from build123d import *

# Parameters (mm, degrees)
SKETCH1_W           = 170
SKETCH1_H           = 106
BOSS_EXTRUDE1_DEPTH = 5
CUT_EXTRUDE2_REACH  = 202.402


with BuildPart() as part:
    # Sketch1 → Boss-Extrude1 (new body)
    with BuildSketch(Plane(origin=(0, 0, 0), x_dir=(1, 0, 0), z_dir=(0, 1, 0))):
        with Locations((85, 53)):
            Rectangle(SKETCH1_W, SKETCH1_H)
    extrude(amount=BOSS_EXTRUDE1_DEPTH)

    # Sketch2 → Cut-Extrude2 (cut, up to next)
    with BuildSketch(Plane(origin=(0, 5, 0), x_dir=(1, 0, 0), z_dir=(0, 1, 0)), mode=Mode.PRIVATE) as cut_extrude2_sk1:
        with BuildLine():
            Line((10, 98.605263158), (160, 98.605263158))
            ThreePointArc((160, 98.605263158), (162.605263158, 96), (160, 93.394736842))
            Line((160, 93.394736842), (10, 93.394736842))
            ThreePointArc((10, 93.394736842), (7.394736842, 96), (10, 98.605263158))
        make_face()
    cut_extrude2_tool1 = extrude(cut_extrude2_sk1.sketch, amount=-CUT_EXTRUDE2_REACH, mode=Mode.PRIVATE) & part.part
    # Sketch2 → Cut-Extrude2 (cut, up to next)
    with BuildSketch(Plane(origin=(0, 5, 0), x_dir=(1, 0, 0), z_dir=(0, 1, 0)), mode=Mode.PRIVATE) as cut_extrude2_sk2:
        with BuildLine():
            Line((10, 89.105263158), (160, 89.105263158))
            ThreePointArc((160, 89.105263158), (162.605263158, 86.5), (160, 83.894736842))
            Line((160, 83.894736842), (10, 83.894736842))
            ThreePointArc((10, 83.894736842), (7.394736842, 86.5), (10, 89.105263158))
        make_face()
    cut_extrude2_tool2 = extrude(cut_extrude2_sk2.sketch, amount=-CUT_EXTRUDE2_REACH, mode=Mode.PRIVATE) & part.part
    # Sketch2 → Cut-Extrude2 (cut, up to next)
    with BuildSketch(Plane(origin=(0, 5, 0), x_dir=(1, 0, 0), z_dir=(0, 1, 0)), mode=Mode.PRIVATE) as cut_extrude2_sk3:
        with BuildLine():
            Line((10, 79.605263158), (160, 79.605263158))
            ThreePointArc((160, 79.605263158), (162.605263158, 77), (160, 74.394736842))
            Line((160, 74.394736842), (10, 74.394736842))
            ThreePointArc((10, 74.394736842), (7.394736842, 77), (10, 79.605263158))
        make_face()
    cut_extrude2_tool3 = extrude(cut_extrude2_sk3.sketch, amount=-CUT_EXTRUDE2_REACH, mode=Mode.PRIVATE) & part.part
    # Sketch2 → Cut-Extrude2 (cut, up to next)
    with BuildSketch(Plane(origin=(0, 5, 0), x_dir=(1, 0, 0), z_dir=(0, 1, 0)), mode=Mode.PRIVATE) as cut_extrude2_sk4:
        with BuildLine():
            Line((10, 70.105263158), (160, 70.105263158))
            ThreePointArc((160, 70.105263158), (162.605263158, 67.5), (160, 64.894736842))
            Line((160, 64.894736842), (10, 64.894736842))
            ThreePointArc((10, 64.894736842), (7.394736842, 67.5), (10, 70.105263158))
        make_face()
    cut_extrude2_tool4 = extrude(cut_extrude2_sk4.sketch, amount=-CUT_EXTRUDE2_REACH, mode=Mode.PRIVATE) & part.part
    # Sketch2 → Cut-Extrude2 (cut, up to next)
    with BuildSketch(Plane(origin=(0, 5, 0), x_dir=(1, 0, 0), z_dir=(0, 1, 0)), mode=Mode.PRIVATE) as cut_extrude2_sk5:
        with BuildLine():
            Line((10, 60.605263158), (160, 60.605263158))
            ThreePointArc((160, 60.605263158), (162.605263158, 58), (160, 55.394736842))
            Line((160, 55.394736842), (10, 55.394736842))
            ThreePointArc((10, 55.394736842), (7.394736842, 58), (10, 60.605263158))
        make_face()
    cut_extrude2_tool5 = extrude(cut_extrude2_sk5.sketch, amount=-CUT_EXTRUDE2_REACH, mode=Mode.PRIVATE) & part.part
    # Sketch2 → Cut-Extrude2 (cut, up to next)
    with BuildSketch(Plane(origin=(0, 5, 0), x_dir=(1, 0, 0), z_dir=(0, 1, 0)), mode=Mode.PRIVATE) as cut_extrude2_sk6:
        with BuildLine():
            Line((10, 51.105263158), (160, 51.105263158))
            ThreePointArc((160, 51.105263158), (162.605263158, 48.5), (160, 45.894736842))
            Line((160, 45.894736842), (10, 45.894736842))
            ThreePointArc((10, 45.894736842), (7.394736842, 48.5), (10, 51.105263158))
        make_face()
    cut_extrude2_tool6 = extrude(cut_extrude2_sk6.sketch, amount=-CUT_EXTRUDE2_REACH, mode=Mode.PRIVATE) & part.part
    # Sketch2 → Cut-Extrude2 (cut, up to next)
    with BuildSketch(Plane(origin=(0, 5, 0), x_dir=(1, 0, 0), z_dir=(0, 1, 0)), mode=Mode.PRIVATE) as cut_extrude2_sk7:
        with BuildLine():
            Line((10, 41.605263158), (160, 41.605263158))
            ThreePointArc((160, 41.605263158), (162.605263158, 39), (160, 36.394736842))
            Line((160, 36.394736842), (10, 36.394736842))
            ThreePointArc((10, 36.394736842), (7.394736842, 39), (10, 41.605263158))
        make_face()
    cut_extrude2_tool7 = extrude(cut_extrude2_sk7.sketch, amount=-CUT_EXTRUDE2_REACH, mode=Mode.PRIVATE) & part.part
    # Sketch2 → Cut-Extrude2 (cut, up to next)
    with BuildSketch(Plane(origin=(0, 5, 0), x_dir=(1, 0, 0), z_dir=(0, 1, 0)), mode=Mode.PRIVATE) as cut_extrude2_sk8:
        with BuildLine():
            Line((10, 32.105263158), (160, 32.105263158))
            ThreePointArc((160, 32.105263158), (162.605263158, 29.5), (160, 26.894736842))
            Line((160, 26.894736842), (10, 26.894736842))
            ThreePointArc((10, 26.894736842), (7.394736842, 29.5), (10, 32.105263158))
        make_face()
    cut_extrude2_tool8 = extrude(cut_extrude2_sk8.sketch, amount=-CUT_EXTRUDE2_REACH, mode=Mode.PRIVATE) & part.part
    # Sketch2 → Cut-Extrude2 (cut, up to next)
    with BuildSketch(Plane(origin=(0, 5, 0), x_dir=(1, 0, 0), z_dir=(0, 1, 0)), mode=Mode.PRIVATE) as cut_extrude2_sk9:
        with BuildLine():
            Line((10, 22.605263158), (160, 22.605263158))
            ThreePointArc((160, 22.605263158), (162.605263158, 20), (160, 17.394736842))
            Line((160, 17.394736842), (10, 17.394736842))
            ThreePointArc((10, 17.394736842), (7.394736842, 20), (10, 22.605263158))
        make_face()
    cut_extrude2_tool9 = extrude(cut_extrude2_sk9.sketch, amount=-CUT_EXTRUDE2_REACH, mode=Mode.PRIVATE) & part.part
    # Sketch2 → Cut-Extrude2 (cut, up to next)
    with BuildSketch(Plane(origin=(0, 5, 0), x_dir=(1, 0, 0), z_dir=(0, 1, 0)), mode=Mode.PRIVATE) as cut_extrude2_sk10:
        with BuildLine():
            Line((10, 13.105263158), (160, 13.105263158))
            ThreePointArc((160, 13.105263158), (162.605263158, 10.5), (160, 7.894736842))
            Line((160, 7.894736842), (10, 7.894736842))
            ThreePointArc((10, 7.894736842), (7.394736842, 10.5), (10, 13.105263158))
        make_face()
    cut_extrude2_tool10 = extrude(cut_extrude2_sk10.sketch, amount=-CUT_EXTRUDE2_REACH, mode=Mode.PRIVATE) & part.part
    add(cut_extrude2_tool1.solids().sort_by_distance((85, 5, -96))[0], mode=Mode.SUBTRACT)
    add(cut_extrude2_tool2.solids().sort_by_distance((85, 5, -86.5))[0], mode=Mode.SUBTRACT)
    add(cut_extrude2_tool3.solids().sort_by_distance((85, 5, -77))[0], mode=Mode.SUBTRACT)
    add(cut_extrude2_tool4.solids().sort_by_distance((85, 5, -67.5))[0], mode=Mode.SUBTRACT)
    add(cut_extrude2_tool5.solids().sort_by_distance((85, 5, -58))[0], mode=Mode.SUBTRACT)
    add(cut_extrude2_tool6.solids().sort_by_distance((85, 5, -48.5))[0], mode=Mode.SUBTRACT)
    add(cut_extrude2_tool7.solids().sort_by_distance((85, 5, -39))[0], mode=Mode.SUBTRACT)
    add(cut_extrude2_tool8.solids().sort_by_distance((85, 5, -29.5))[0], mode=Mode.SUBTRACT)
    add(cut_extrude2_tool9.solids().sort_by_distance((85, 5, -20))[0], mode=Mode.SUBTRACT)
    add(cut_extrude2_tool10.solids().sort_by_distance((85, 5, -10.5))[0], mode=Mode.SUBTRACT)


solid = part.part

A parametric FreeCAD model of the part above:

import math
import FreeCAD as App
import Part
import Sketcher
from FreeCAD import Vector


def add_polygon(sketch, points):
    """Adds a closed chain of lines whose ends are joined by coincident constraints."""
    first, n = sketch.GeometryCount, len(points)
    for a, b in zip(points, points[1:] + points[:1]):
        sketch.addGeometry(Part.LineSegment(App.Vector(*a, 0), App.Vector(*b, 0)), False)
    for i in range(n):
        sketch.addConstraint(Sketcher.Constraint("Coincident", first + i, 2, first + (i + 1) % n, 1))

doc = App.newDocument("Part")
body = doc.addObject("PartDesign::Body", "Body")

sketch1 = body.newObject("Sketcher::SketchObject", "Sketch")
sketch1.AttachmentSupport = (doc.getObject("XZ_Plane"), [""])
sketch1.MapMode = "FlatFace"
add_polygon(sketch1, [(0, -106), (0, 0), (170, 0), (170, -106)])
sketch1.addConstraint([
    Sketcher.Constraint("Vertical", 0),
    Sketcher.Constraint("Horizontal", 1),
    Sketcher.Constraint("Vertical", 2),
    Sketcher.Constraint("Horizontal", 3),
    Sketcher.Constraint("Coincident", 0, 2, -1, 1),
    Sketcher.Constraint("DistanceX", 1, 1, 1, 2, 170.0),
    Sketcher.Constraint("DistanceY", 0, 1, 0, 2, 106.0),
])
pad1 = body.newObject("PartDesign::Pad", "Pad")
pad1.Profile = sketch1
pad1.Length = 5
pad1.Reversed = True

sketch2 = body.newObject("Sketcher::SketchObject", "Sketch001")
sketch2.AttachmentSupport = (doc.getObject("XZ_Plane"), [""])
sketch2.MapMode = "FlatFace"
sketch2.AttachmentOffset = App.Placement(Vector(0, 0, -5), App.Rotation())
sketch2.addGeometry([
    Part.LineSegment(Vector(160, -98.6, 0), Vector(10, -98.6, 0)),
    Part.ArcOfCircle(Part.Circle(Vector(10, -96, 0), Vector(0, 0, 1), 2.6), math.radians(90), math.radians(270)),
    Part.LineSegment(Vector(10, -93.4, 0), Vector(160, -93.4, 0)),
    Part.ArcOfCircle(Part.Circle(Vector(160, -96, 0), Vector(0, 0, 1), 2.6), math.radians(-90), math.radians(90)),
], False)
sketch2.addConstraint([
    Sketcher.Constraint("Tangent", 0, 2, 1, 2),
    Sketcher.Constraint("Tangent", 1, 1, 2, 1),
    Sketcher.Constraint("Tangent", 2, 2, 3, 2),
    Sketcher.Constraint("Tangent", 3, 1, 0, 1),
    Sketcher.Constraint("Horizontal", 0),
    Sketcher.Constraint("Horizontal", 2),
    Sketcher.Constraint("DistanceX", 0, 2, 0, 1, 150.0),
    Sketcher.Constraint("DistanceX", -1, 1, 1, 3, 10.0),
    Sketcher.Constraint("DistanceY", 1, 3, -1, 1, 96.0),
    Sketcher.Constraint("Radius", 1, 2.605263),
])
pocket1 = body.newObject("PartDesign::Pocket", "Pocket")
pocket1.Profile = sketch2
pocket1.Type = "UpToFirst"
pocket1.Reversed = True

sketch3 = body.newObject("Sketcher::SketchObject", "Sketch002")
sketch3.AttachmentSupport = (doc.getObject("XZ_Plane"), [""])
sketch3.MapMode = "FlatFace"
sketch3.AttachmentOffset = App.Placement(Vector(0, 0, -5), App.Rotation())
sketch3.addGeometry([
    Part.LineSegment(Vector(160, -89.1, 0), Vector(10, -89.1, 0)),
    Part.ArcOfCircle(Part.Circle(Vector(10, -86.5, 0), Vector(0, 0, 1), 2.6), math.radians(90), math.radians(270)),
    Part.LineSegment(Vector(10, -83.9, 0), Vector(160, -83.9, 0)),
    Part.ArcOfCircle(Part.Circle(Vector(160, -86.5, 0), Vector(0, 0, 1), 2.6), math.radians(-90), math.radians(90)),
], False)
sketch3.addConstraint([
    Sketcher.Constraint("Tangent", 0, 2, 1, 2),
    Sketcher.Constraint("Tangent", 1, 1, 2, 1),
    Sketcher.Constraint("Tangent", 2, 2, 3, 2),
    Sketcher.Constraint("Tangent", 3, 1, 0, 1),
    Sketcher.Constraint("Horizontal", 0),
    Sketcher.Constraint("Horizontal", 2),
    Sketcher.Constraint("DistanceX", 0, 2, 0, 1, 150.0),
    Sketcher.Constraint("DistanceX", -1, 1, 1, 3, 10.0),
    Sketcher.Constraint("DistanceY", 1, 3, -1, 1, 86.5),
    Sketcher.Constraint("Radius", 1, 2.605263),
])
pocket2 = body.newObject("PartDesign::Pocket", "Pocket001")
pocket2.Profile = sketch3
pocket2.Type = "UpToFirst"
pocket2.Reversed = True

sketch4 = body.newObject("Sketcher::SketchObject", "Sketch003")
sketch4.AttachmentSupport = (doc.getObject("XZ_Plane"), [""])
sketch4.MapMode = "FlatFace"
sketch4.AttachmentOffset = App.Placement(Vector(0, 0, -5), App.Rotation())
sketch4.addGeometry([
    Part.LineSegment(Vector(160, -79.6, 0), Vector(10, -79.6, 0)),
    Part.ArcOfCircle(Part.Circle(Vector(10, -77, 0), Vector(0, 0, 1), 2.6), math.radians(90), math.radians(270)),
    Part.LineSegment(Vector(10, -74.4, 0), Vector(160, -74.4, 0)),
    Part.ArcOfCircle(Part.Circle(Vector(160, -77, 0), Vector(0, 0, 1), 2.6), math.radians(-90), math.radians(90)),
], False)
sketch4.addConstraint([
    Sketcher.Constraint("Tangent", 0, 2, 1, 2),
    Sketcher.Constraint("Tangent", 1, 1, 2, 1),
    Sketcher.Constraint("Tangent", 2, 2, 3, 2),
    Sketcher.Constraint("Tangent", 3, 1, 0, 1),
    Sketcher.Constraint("Horizontal", 0),
    Sketcher.Constraint("Horizontal", 2),
    Sketcher.Constraint("DistanceX", 0, 2, 0, 1, 150.0),
    Sketcher.Constraint("DistanceX", -1, 1, 1, 3, 10.0),
    Sketcher.Constraint("DistanceY", 1, 3, -1, 1, 77.0),
    Sketcher.Constraint("Radius", 1, 2.605263),
])
pocket3 = body.newObject("PartDesign::Pocket", "Pocket002")
pocket3.Profile = sketch4
pocket3.Type = "UpToFirst"
pocket3.Reversed = True

sketch5 = body.newObject("Sketcher::SketchObject", "Sketch004")
sketch5.AttachmentSupport = (doc.getObject("XZ_Plane"), [""])
sketch5.MapMode = "FlatFace"
sketch5.AttachmentOffset = App.Placement(Vector(0, 0, -5), App.Rotation())
sketch5.addGeometry([
    Part.LineSegment(Vector(160, -70.1, 0), Vector(10, -70.1, 0)),
    Part.ArcOfCircle(Part.Circle(Vector(10, -67.5, 0), Vector(0, 0, 1), 2.6), math.radians(90), math.radians(270)),
    Part.LineSegment(Vector(10, -64.9, 0), Vector(160, -64.9, 0)),
    Part.ArcOfCircle(Part.Circle(Vector(160, -67.5, 0), Vector(0, 0, 1), 2.6), math.radians(-90), math.radians(90)),
], False)
sketch5.addConstraint([
    Sketcher.Constraint("Tangent", 0, 2, 1, 2),
    Sketcher.Constraint("Tangent", 1, 1, 2, 1),
    Sketcher.Constraint("Tangent", 2, 2, 3, 2),
    Sketcher.Constraint("Tangent", 3, 1, 0, 1),
    Sketcher.Constraint("Horizontal", 0),
    Sketcher.Constraint("Horizontal", 2),
    Sketcher.Constraint("DistanceX", 0, 2, 0, 1, 150.0),
    Sketcher.Constraint("DistanceX", -1, 1, 1, 3, 10.0),
    Sketcher.Constraint("DistanceY", 1, 3, -1, 1, 67.5),
    Sketcher.Constraint("Radius", 1, 2.605263),
])
pocket4 = body.newObject("PartDesign::Pocket", "Pocket003")
pocket4.Profile = sketch5
pocket4.Type = "UpToFirst"
pocket4.Reversed = True

sketch6 = body.newObject("Sketcher::SketchObject", "Sketch005")
sketch6.AttachmentSupport = (doc.getObject("XZ_Plane"), [""])
sketch6.MapMode = "FlatFace"
sketch6.AttachmentOffset = App.Placement(Vector(0, 0, -5), App.Rotation())
sketch6.addGeometry([
    Part.LineSegment(Vector(160, -60.6, 0), Vector(10, -60.6, 0)),
    Part.ArcOfCircle(Part.Circle(Vector(10, -58, 0), Vector(0, 0, 1), 2.6), math.radians(90), math.radians(270)),
    Part.LineSegment(Vector(10, -55.4, 0), Vector(160, -55.4, 0)),
    Part.ArcOfCircle(Part.Circle(Vector(160, -58, 0), Vector(0, 0, 1), 2.6), math.radians(-90), math.radians(90)),
], False)
sketch6.addConstraint([
    Sketcher.Constraint("Tangent", 0, 2, 1, 2),
    Sketcher.Constraint("Tangent", 1, 1, 2, 1),
    Sketcher.Constraint("Tangent", 2, 2, 3, 2),
    Sketcher.Constraint("Tangent", 3, 1, 0, 1),
    Sketcher.Constraint("Horizontal", 0),
    Sketcher.Constraint("Horizontal", 2),
    Sketcher.Constraint("DistanceX", 0, 2, 0, 1, 150.0),
    Sketcher.Constraint("DistanceX", -1, 1, 1, 3, 10.0),
    Sketcher.Constraint("DistanceY", 1, 3, -1, 1, 58.0),
    Sketcher.Constraint("Radius", 1, 2.605263),
])
pocket5 = body.newObject("PartDesign::Pocket", "Pocket004")
pocket5.Profile = sketch6
pocket5.Type = "UpToFirst"
pocket5.Reversed = True

sketch7 = body.newObject("Sketcher::SketchObject", "Sketch006")
sketch7.AttachmentSupport = (doc.getObject("XZ_Plane"), [""])
sketch7.MapMode = "FlatFace"
sketch7.AttachmentOffset = App.Placement(Vector(0, 0, -5), App.Rotation())
sketch7.addGeometry([
    Part.LineSegment(Vector(160, -51.1, 0), Vector(10, -51.1, 0)),
    Part.ArcOfCircle(Part.Circle(Vector(10, -48.5, 0), Vector(0, 0, 1), 2.6), math.radians(90), math.radians(270)),
    Part.LineSegment(Vector(10, -45.9, 0), Vector(160, -45.9, 0)),
    Part.ArcOfCircle(Part.Circle(Vector(160, -48.5, 0), Vector(0, 0, 1), 2.6), math.radians(-90), math.radians(90)),
], False)
sketch7.addConstraint([
    Sketcher.Constraint("Tangent", 0, 2, 1, 2),
    Sketcher.Constraint("Tangent", 1, 1, 2, 1),
    Sketcher.Constraint("Tangent", 2, 2, 3, 2),
    Sketcher.Constraint("Tangent", 3, 1, 0, 1),
    Sketcher.Constraint("Horizontal", 0),
    Sketcher.Constraint("Horizontal", 2),
    Sketcher.Constraint("DistanceX", 0, 2, 0, 1, 150.0),
    Sketcher.Constraint("DistanceX", -1, 1, 1, 3, 10.0),
    Sketcher.Constraint("DistanceY", 1, 3, -1, 1, 48.5),
    Sketcher.Constraint("Radius", 1, 2.605263),
])
pocket6 = body.newObject("PartDesign::Pocket", "Pocket005")
pocket6.Profile = sketch7
pocket6.Type = "UpToFirst"
pocket6.Reversed = True

sketch8 = body.newObject("Sketcher::SketchObject", "Sketch007")
sketch8.AttachmentSupport = (doc.getObject("XZ_Plane"), [""])
sketch8.MapMode = "FlatFace"
sketch8.AttachmentOffset = App.Placement(Vector(0, 0, -5), App.Rotation())
sketch8.addGeometry([
    Part.LineSegment(Vector(160, -41.6, 0), Vector(10, -41.6, 0)),
    Part.ArcOfCircle(Part.Circle(Vector(10, -39, 0), Vector(0, 0, 1), 2.6), math.radians(90), math.radians(270)),
    Part.LineSegment(Vector(10, -36.4, 0), Vector(160, -36.4, 0)),
    Part.ArcOfCircle(Part.Circle(Vector(160, -39, 0), Vector(0, 0, 1), 2.6), math.radians(-90), math.radians(90)),
], False)
sketch8.addConstraint([
    Sketcher.Constraint("Tangent", 0, 2, 1, 2),
    Sketcher.Constraint("Tangent", 1, 1, 2, 1),
    Sketcher.Constraint("Tangent", 2, 2, 3, 2),
    Sketcher.Constraint("Tangent", 3, 1, 0, 1),
    Sketcher.Constraint("Horizontal", 0),
    Sketcher.Constraint("Horizontal", 2),
    Sketcher.Constraint("DistanceX", 0, 2, 0, 1, 150.0),
    Sketcher.Constraint("DistanceX", -1, 1, 1, 3, 10.0),
    Sketcher.Constraint("DistanceY", 1, 3, -1, 1, 39.0),
    Sketcher.Constraint("Radius", 1, 2.605263),
])
pocket7 = body.newObject("PartDesign::Pocket", "Pocket006")
pocket7.Profile = sketch8
pocket7.Type = "UpToFirst"
pocket7.Reversed = True

sketch9 = body.newObject("Sketcher::SketchObject", "Sketch008")
sketch9.AttachmentSupport = (doc.getObject("XZ_Plane"), [""])
sketch9.MapMode = "FlatFace"
sketch9.AttachmentOffset = App.Placement(Vector(0, 0, -5), App.Rotation())
sketch9.addGeometry([
    Part.LineSegment(Vector(160, -32.1, 0), Vector(10, -32.1, 0)),
    Part.ArcOfCircle(Part.Circle(Vector(10, -29.5, 0), Vector(0, 0, 1), 2.6), math.radians(90), math.radians(270)),
    Part.LineSegment(Vector(10, -26.9, 0), Vector(160, -26.9, 0)),
    Part.ArcOfCircle(Part.Circle(Vector(160, -29.5, 0), Vector(0, 0, 1), 2.6), math.radians(-90), math.radians(90)),
], False)
sketch9.addConstraint([
    Sketcher.Constraint("Tangent", 0, 2, 1, 2),
    Sketcher.Constraint("Tangent", 1, 1, 2, 1),
    Sketcher.Constraint("Tangent", 2, 2, 3, 2),
    Sketcher.Constraint("Tangent", 3, 1, 0, 1),
    Sketcher.Constraint("Horizontal", 0),
    Sketcher.Constraint("Horizontal", 2),
    Sketcher.Constraint("DistanceX", 0, 2, 0, 1, 150.0),
    Sketcher.Constraint("DistanceX", -1, 1, 1, 3, 10.0),
    Sketcher.Constraint("DistanceY", 1, 3, -1, 1, 29.5),
    Sketcher.Constraint("Radius", 1, 2.605263),
])
pocket8 = body.newObject("PartDesign::Pocket", "Pocket007")
pocket8.Profile = sketch9
pocket8.Type = "UpToFirst"
pocket8.Reversed = True

sketch10 = body.newObject("Sketcher::SketchObject", "Sketch009")
sketch10.AttachmentSupport = (doc.getObject("XZ_Plane"), [""])
sketch10.MapMode = "FlatFace"
sketch10.AttachmentOffset = App.Placement(Vector(0, 0, -5), App.Rotation())
sketch10.addGeometry([
    Part.LineSegment(Vector(160, -22.6, 0), Vector(10, -22.6, 0)),
    Part.ArcOfCircle(Part.Circle(Vector(10, -20, 0), Vector(0, 0, 1), 2.6), math.radians(90), math.radians(270)),
    Part.LineSegment(Vector(10, -17.4, 0), Vector(160, -17.4, 0)),
    Part.ArcOfCircle(Part.Circle(Vector(160, -20, 0), Vector(0, 0, 1), 2.6), math.radians(-90), math.radians(90)),
], False)
sketch10.addConstraint([
    Sketcher.Constraint("Tangent", 0, 2, 1, 2),
    Sketcher.Constraint("Tangent", 1, 1, 2, 1),
    Sketcher.Constraint("Tangent", 2, 2, 3, 2),
    Sketcher.Constraint("Tangent", 3, 1, 0, 1),
    Sketcher.Constraint("Horizontal", 0),
    Sketcher.Constraint("Horizontal", 2),
    Sketcher.Constraint("DistanceX", 0, 2, 0, 1, 150.0),
    Sketcher.Constraint("DistanceX", -1, 1, 1, 3, 10.0),
    Sketcher.Constraint("DistanceY", 1, 3, -1, 1, 20.0),
    Sketcher.Constraint("Radius", 1, 2.605263),
])
pocket9 = body.newObject("PartDesign::Pocket", "Pocket008")
pocket9.Profile = sketch10
pocket9.Type = "UpToFirst"
pocket9.Reversed = True

sketch11 = body.newObject("Sketcher::SketchObject", "Sketch010")
sketch11.AttachmentSupport = (doc.getObject("XZ_Plane"), [""])
sketch11.MapMode = "FlatFace"
sketch11.AttachmentOffset = App.Placement(Vector(0, 0, -5), App.Rotation())
sketch11.addGeometry([
    Part.LineSegment(Vector(160, -13.1, 0), Vector(10, -13.1, 0)),
    Part.ArcOfCircle(Part.Circle(Vector(10, -10.5, 0), Vector(0, 0, 1), 2.6), math.radians(90), math.radians(270)),
    Part.LineSegment(Vector(10, -7.9, 0), Vector(160, -7.9, 0)),
    Part.ArcOfCircle(Part.Circle(Vector(160, -10.5, 0), Vector(0, 0, 1), 2.6), math.radians(-90), math.radians(90)),
], False)
sketch11.addConstraint([
    Sketcher.Constraint("Tangent", 0, 2, 1, 2),
    Sketcher.Constraint("Tangent", 1, 1, 2, 1),
    Sketcher.Constraint("Tangent", 2, 2, 3, 2),
    Sketcher.Constraint("Tangent", 3, 1, 0, 1),
    Sketcher.Constraint("Horizontal", 0),
    Sketcher.Constraint("Horizontal", 2),
    Sketcher.Constraint("DistanceX", 0, 2, 0, 1, 150.0),
    Sketcher.Constraint("DistanceX", -1, 1, 1, 3, 10.0),
    Sketcher.Constraint("DistanceY", 1, 3, -1, 1, 10.5),
    Sketcher.Constraint("Radius", 1, 2.605263),
])
pocket10 = body.newObject("PartDesign::Pocket", "Pocket009")
pocket10.Profile = sketch11
pocket10.Type = "UpToFirst"
pocket10.Reversed = True

doc.recompute()
